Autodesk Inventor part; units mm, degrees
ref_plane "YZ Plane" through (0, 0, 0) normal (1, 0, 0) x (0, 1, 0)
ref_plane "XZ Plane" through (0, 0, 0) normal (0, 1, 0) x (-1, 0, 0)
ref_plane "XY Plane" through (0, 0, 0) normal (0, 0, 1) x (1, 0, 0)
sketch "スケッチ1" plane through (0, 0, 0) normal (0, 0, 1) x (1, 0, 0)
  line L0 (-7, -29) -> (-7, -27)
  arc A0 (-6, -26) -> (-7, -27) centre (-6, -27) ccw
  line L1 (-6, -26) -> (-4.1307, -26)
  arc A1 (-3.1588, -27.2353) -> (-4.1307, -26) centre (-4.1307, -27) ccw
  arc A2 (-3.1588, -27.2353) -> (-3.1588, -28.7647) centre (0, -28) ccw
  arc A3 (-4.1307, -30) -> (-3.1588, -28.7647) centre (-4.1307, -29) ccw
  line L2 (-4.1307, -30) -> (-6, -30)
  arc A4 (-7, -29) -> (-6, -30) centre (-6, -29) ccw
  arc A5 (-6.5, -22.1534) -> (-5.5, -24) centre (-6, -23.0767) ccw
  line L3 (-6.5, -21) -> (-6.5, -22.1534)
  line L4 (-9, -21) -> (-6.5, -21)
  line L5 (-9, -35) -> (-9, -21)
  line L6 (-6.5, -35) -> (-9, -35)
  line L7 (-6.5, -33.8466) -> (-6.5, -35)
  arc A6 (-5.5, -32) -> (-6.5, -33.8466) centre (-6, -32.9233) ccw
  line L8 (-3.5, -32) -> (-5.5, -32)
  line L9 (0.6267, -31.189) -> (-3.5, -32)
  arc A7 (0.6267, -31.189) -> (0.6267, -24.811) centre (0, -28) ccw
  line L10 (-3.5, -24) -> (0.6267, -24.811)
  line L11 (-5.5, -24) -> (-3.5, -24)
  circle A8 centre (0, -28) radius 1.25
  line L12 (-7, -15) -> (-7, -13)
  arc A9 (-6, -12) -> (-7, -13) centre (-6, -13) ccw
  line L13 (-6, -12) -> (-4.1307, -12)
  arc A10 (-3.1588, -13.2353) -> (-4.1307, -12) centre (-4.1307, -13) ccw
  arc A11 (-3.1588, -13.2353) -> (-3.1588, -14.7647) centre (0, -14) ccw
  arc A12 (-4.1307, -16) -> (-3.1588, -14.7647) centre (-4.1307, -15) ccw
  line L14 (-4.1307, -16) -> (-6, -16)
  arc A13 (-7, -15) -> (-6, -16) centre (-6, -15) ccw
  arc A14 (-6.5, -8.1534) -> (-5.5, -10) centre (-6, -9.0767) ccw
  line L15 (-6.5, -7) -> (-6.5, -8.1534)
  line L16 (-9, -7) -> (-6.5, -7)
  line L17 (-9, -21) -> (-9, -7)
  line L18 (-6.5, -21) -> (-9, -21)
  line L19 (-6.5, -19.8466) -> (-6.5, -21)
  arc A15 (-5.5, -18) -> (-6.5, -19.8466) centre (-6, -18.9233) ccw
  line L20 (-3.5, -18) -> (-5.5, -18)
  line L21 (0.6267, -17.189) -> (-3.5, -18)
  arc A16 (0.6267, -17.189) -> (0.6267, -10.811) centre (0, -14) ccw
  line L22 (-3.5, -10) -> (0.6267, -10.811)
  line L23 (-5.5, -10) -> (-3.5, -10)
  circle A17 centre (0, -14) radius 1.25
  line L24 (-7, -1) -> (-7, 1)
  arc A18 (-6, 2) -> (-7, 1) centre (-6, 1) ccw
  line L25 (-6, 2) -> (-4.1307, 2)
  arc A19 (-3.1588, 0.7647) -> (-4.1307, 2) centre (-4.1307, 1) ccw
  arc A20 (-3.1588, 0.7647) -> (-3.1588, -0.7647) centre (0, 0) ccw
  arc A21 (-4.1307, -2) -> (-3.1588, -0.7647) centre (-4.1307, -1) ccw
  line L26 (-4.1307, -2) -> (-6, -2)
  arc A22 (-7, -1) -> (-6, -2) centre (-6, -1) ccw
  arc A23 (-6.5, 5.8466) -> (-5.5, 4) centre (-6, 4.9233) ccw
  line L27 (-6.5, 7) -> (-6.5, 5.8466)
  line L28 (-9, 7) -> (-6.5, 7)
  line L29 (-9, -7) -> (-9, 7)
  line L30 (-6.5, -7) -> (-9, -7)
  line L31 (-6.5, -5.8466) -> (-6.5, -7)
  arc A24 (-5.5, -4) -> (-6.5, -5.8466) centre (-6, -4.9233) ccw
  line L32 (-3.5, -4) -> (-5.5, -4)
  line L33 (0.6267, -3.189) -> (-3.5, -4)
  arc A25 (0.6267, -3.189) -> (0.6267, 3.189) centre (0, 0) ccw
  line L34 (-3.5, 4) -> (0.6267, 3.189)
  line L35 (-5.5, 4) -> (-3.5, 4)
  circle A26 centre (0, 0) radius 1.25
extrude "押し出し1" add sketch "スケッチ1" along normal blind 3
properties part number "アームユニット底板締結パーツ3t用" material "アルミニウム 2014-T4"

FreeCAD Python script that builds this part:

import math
import FreeCAD as App
import Part
import Sketcher
from FreeCAD import Vector
Q = App.Units.Quantity

doc = App.newDocument("Part")
params = doc.addObject("Spreadsheet::Sheet", "Params")
for row, (alias, value) in enumerate([
    ("sketch1_radius", "1 mm"),
    ("sketch1_diameter", "2.5 mm"),
    ("sketch1_width", "2 mm"),
    ("sketch1_height", "42 mm"),
    ("sketch1_radius2", "1.05 mm"),
    ("pad1_length", "3 mm"),
], start=1):
    params.set(f"A{row}", alias)
    params.set(f"B{row}", "=" + value)
    params.setAlias(f"B{row}", alias)

body = doc.addObject("PartDesign::Body", "Body")

sketch1 = body.newObject("Sketcher::SketchObject", "Sketch")
sketch1.AttachmentSupport = (doc.getObject("XY_Plane"), [""])
sketch1.MapMode = "FlatFace"
sketch1.addGeometry([
    Part.ArcOfCircle(Part.Circle(Vector(-6, -23.1, 0), Vector(0, 0, 1), 1), math.radians(118), math.radians(298)),
    Part.LineSegment(Vector(-6.5, -22.2, 0), Vector(-6.5, -19.8, 0)),
    Part.ArcOfCircle(Part.Circle(Vector(-6, -18.9, 0), Vector(0, 0, 1), 1), math.radians(62), math.radians(242)),
    Part.LineSegment(Vector(-5.5, -18, 0), Vector(-3.5, -18, 0)),
    Part.LineSegment(Vector(-3.5, -18, 0), Vector(0.6, -17.2, 0)),
    Part.ArcOfCircle(Part.Circle(Vector(0, -14, 0), Vector(0, 0, 1), 3.2), math.radians(-79), math.radians(79)),
    Part.LineSegment(Vector(0.6, -10.8, 0), Vector(-3.5, -10, 0)),
    Part.LineSegment(Vector(-3.5, -10, 0), Vector(-5.5, -10, 0)),
    Part.ArcOfCircle(Part.Circle(Vector(-6, -9.1, 0), Vector(0, 0, 1), 1), math.radians(118), math.radians(298)),
    Part.LineSegment(Vector(-6.5, -8.2, 0), Vector(-6.5, -5.8, 0)),
    Part.ArcOfCircle(Part.Circle(Vector(-6, -4.9, 0), Vector(0, 0, 1), 1), math.radians(62), math.radians(242)),
    Part.LineSegment(Vector(-5.5, -4, 0), Vector(-3.5, -4, 0)),
    Part.LineSegment(Vector(-3.5, -4, 0), Vector(0.6, -3.2, 0)),
    Part.ArcOfCircle(Part.Circle(Vector(0, 0, 0), Vector(0, 0, 1), 3.2), math.radians(-79), math.radians(79)),
    Part.LineSegment(Vector(0.6, 3.2, 0), Vector(-3.5, 4, 0)),
    Part.LineSegment(Vector(-3.5, 4, 0), Vector(-5.5, 4, 0)),
    Part.ArcOfCircle(Part.Circle(Vector(-6, 4.9, 0), Vector(0, 0, 1), 1), math.radians(118), math.radians(298)),
    Part.LineSegment(Vector(-6.5, 5.8, 0), Vector(-6.5, 7, 0)),
    Part.LineSegment(Vector(-6.5, 7, 0), Vector(-9, 7, 0)),
    Part.LineSegment(Vector(-9, 7, 0), Vector(-9, -35, 0)),
    Part.LineSegment(Vector(-9, -35, 0), Vector(-6.5, -35, 0)),
    Part.LineSegment(Vector(-6.5, -35, 0), Vector(-6.5, -33.8, 0)),
    Part.ArcOfCircle(Part.Circle(Vector(-6, -32.9, 0), Vector(0, 0, 1), 1), math.radians(62), math.radians(242)),
    Part.LineSegment(Vector(-5.5, -32, 0), Vector(-3.5, -32, 0)),
    Part.LineSegment(Vector(-3.5, -32, 0), Vector(0.6, -31.2, 0)),
    Part.ArcOfCircle(Part.Circle(Vector(0, -28, 0), Vector(0, 0, 1), 3.2), math.radians(-79), math.radians(79)),
    Part.LineSegment(Vector(0.6, -24.8, 0), Vector(-3.5, -24, 0)),
    Part.LineSegment(Vector(-3.5, -24, 0), Vector(-5.5, -24, 0)),
    Part.ArcOfCircle(Part.Circle(Vector(-6, -29, 0), Vector(0, 0, 1), 1), math.radians(180), math.radians(270)),
    Part.LineSegment(Vector(-7, -29, 0), Vector(-7, -27, 0)),
    Part.ArcOfCircle(Part.Circle(Vector(-6, -27, 0), Vector(0, 0, 1), 1), math.radians(90), math.radians(180)),
    Part.LineSegment(Vector(-6, -26, 0), Vector(-4.1, -26, 0)),
    Part.ArcOfCircle(Part.Circle(Vector(-4.1, -27, 0), Vector(0, 0, 1), 1), math.radians(-14), math.radians(90)),
    Part.ArcOfCircle(Part.Circle(Vector(0, -28, 0), Vector(0, 0, 1), 3.3), math.radians(166), math.radians(194)),
    Part.ArcOfCircle(Part.Circle(Vector(-4.1, -29, 0), Vector(0, 0, 1), 1), math.radians(-90), math.radians(14)),
    Part.LineSegment(Vector(-4.1, -30, 0), Vector(-6, -30, 0)),
    Part.Circle(Vector(0, -28, 0), Vector(0, 0, 1), 1.2),
    Part.Circle(Vector(0, -14, 0), Vector(0, 0, 1), 1.2),
    Part.ArcOfCircle(Part.Circle(Vector(-6, -15, 0), Vector(0, 0, 1), 1), math.radians(180), math.radians(270)),
    Part.LineSegment(Vector(-7, -15, 0), Vector(-7, -13, 0)),
    Part.ArcOfCircle(Part.Circle(Vector(-6, -13, 0), Vector(0, 0, 1), 1), math.radians(90), math.radians(180)),
    Part.LineSegment(Vector(-6, -12, 0), Vector(-4.1, -12, 0)),
    Part.ArcOfCircle(Part.Circle(Vector(-4.1, -13, 0), Vector(0, 0, 1), 1), math.radians(-14), math.radians(90)),
    Part.ArcOfCircle(Part.Circle(Vector(0, -14, 0), Vector(0, 0, 1), 3.3), math.radians(166), math.radians(194)),
    Part.ArcOfCircle(Part.Circle(Vector(-4.1, -15, 0), Vector(0, 0, 1), 1), math.radians(-90), math.radians(14)),
    Part.LineSegment(Vector(-4.1, -16, 0), Vector(-6, -16, 0)),
    Part.Circle(Vector(0, 0, 0), Vector(0, 0, 1), 1.2),
    Part.ArcOfCircle(Part.Circle(Vector(-6, -1, 0), Vector(0, 0, 1), 1), math.radians(180), math.radians(270)),
    Part.LineSegment(Vector(-7, -1, 0), Vector(-7, 1, 0)),
    Part.ArcOfCircle(Part.Circle(Vector(-6, 1, 0), Vector(0, 0, 1), 1), math.radians(90), math.radians(180)),
    Part.LineSegment(Vector(-6, 2, 0), Vector(-4.1, 2, 0)),
    Part.ArcOfCircle(Part.Circle(Vector(-4.1, 1, 0), Vector(0, 0, 1), 1), math.radians(-14), math.radians(90)),
    Part.ArcOfCircle(Part.Circle(Vector(0, 0, 0), Vector(0, 0, 1), 3.3), math.radians(166), math.radians(194)),
    Part.ArcOfCircle(Part.Circle(Vector(-4.1, -1, 0), Vector(0, 0, 1), 1), math.radians(-90), math.radians(14)),
    Part.LineSegment(Vector(-4.1, -2, 0), Vector(-6, -2, 0)),
], False)
sketch1.addConstraint([
    Sketcher.Constraint("Coincident", 0, 1, 1, 1),
    Sketcher.Constraint("Coincident", 1, 2, 2, 2),
    Sketcher.Constraint("Coincident", 2, 1, 3, 1),
    Sketcher.Constraint("Coincident", 3, 2, 4, 1),
    Sketcher.Constraint("Tangent", 4, 2, 5, 1),
    Sketcher.Constraint("Tangent", 5, 2, 6, 1),
    Sketcher.Constraint("Coincident", 6, 2, 7, 1),
    Sketcher.Constraint("Coincident", 7, 2, 8, 2),
    Sketcher.Constraint("Coincident", 8, 1, 9, 1),
    Sketcher.Constraint("Coincident", 9, 2, 10, 2),
    Sketcher.Constraint("Coincident", 10, 1, 11, 1),
    Sketcher.Constraint("Coincident", 11, 2, 12, 1),
    Sketcher.Constraint("Tangent", 12, 2, 13, 1),
    Sketcher.Constraint("Tangent", 13, 2, 14, 1),
    Sketcher.Constraint("Coincident", 14, 2, 15, 1),
    Sketcher.Constraint("Coincident", 15, 2, 16, 2),
    Sketcher.Constraint("Coincident", 16, 1, 17, 1),
    Sketcher.Constraint("Coincident", 17, 2, 18, 1),
    Sketcher.Constraint("Coincident", 18, 2, 19, 1),
    Sketcher.Constraint("Coincident", 19, 2, 20, 1),
    Sketcher.Constraint("Coincident", 20, 2, 21, 1),
    Sketcher.Constraint("Coincident", 21, 2, 22, 2),
    Sketcher.Constraint("Coincident", 22, 1, 23, 1),
    Sketcher.Constraint("Coincident", 23, 2, 24, 1),
    Sketcher.Constraint("Tangent", 24, 2, 25, 1),
    Sketcher.Constraint("Tangent", 25, 2, 26, 1),
    Sketcher.Constraint("Coincident", 26, 2, 27, 1),
    Sketcher.Constraint("Coincident", 27, 2, 0, 2),
    Sketcher.Constraint("Tangent", 28, 1, 29, 1),
    Sketcher.Constraint("Tangent", 29, 2, 30, 2),
    Sketcher.Constraint("Tangent", 30, 1, 31, 1),
    Sketcher.Constraint("Tangent", 31, 2, 32, 2),
    Sketcher.Constraint("Tangent", 32, 1, 33, 1),
    Sketcher.Constraint("Tangent", 33, 2, 34, 2),
    Sketcher.Constraint("Tangent", 34, 1, 35, 1),
    Sketcher.Constraint("Tangent", 35, 2, 28, 2),
    Sketcher.Constraint("Tangent", 38, 1, 39, 1),
    Sketcher.Constraint("Tangent", 39, 2, 40, 2),
    Sketcher.Constraint("Tangent", 40, 1, 41, 1),
    Sketcher.Constraint("Tangent", 41, 2, 42, 2),
    Sketcher.Constraint("Tangent", 42, 1, 43, 1),
    Sketcher.Constraint("Tangent", 43, 2, 44, 2),
    Sketcher.Constraint("Tangent", 44, 1, 45, 1),
    Sketcher.Constraint("Tangent", 45, 2, 38, 2),
    Sketcher.Constraint("Tangent", 47, 1, 48, 1),
    Sketcher.Constraint("Tangent", 48, 2, 49, 2),
    Sketcher.Constraint("Tangent", 49, 1, 50, 1),
    Sketcher.Constraint("Tangent", 50, 2, 51, 2),
    Sketcher.Constraint("Tangent", 51, 1, 52, 1),
    Sketcher.Constraint("Tangent", 52, 2, 53, 2),
    Sketcher.Constraint("Tangent", 53, 1, 54, 1),
    Sketcher.Constraint("Tangent", 54, 2, 47, 2),
    Sketcher.Constraint("Vertical", 1),
    Sketcher.Constraint("Horizontal", 3),
    Sketcher.Constraint("Horizontal", 7),
    Sketcher.Constraint("Vertical", 9),
    Sketcher.Constraint("Horizontal", 11),
    Sketcher.Constraint("Horizontal", 15),
    Sketcher.Constraint("Vertical", 17),
    Sketcher.Constraint("Horizontal", 18),
    Sketcher.Constraint("Vertical", 19),
    Sketcher.Constraint("Horizontal", 20),
    Sketcher.Constraint("Vertical", 21),
    Sketcher.Constraint("Horizontal", 23),
    Sketcher.Constraint("Horizontal", 27),
    Sketcher.Constraint("Vertical", 29),
    Sketcher.Constraint("Horizontal", 31),
    Sketcher.Constraint("Horizontal", 35),
    Sketcher.Constraint("Vertical", 39),
    Sketcher.Constraint("Horizontal", 41),
    Sketcher.Constraint("Horizontal", 45),
    Sketcher.Constraint("Vertical", 48),
    Sketcher.Constraint("Horizontal", 50),
    Sketcher.Constraint("Horizontal", 54),
    Sketcher.Constraint("Coincident", 13, 3, -1, 1),
    Sketcher.Constraint("Coincident", 46, 3, -1, 1),
    Sketcher.Constraint("Coincident", 52, 3, -1, 1),
    Sketcher.Constraint("Coincident", 33, 3, 25, 3),
    Sketcher.Constraint("Coincident", 36, 3, 25, 3),
    Sketcher.Constraint("Coincident", 37, 3, 5, 3),
    Sketcher.Constraint("Coincident", 43, 3, 5, 3),
    Sketcher.Constraint("Equal", 0, 2),
    Sketcher.Constraint("Equal", 2, 8),
    Sketcher.Constraint("Equal", 8, 10),
    Sketcher.Constraint("Equal", 5, 13),
    Sketcher.Constraint("Equal", 10, 16),
    Sketcher.Constraint("Equal", 16, 22),
    Sketcher.Constraint("Equal", 13, 25),
    Sketcher.Constraint("Equal", 28, 30),
    Sketcher.Constraint("Equal", 30, 32),
    Sketcher.Constraint("Equal", 25, 33),
    Sketcher.Constraint("Equal", 32, 34),
    Sketcher.Constraint("Equal", 36, 37),
    Sketcher.Constraint("Equal", 34, 38),
    Sketcher.Constraint("Equal", 38, 40),
    Sketcher.Constraint("Equal", 40, 42),
    Sketcher.Constraint("Equal", 33, 43),
    Sketcher.Constraint("Equal", 42, 44),
    Sketcher.Constraint("Equal", 37, 46),
    Sketcher.Constraint("Equal", 44, 47),
    Sketcher.Constraint("Equal", 47, 49),
    Sketcher.Constraint("Equal", 49, 51),
    Sketcher.Constraint("Equal", 43, 52),
    Sketcher.Constraint("Equal", 51, 53),
    Sketcher.Constraint("Symmetric", 10, 3, 16, 3, -1),
    Sketcher.Constraint("Symmetric", 11, 2, 14, 2, -1),
    Sketcher.Constraint("PointOnObject", 5, 3, -2),
    Sketcher.Constraint("PointOnObject", 25, 3, -2),
    Sketcher.Constraint("Parallel", 4, 12),
    Sketcher.Constraint("Parallel", 6, 14),
    Sketcher.Constraint("Parallel", 12, 24),
    Sketcher.Constraint("Parallel", 14, 26),
    Sketcher.Constraint("Vertical", 0, 3, 2, 3),
    Sketcher.Constraint("Vertical", 2, 3, 8, 3),
    Sketcher.Constraint("Vertical", 8, 3, 10, 3),
    Sketcher.Constraint("Vertical", 16, 3, 22, 3),
    Sketcher.Constraint("Vertical", 22, 3, 28, 3),
    Sketcher.Constraint("Vertical", 32, 3, 34, 3),
    Sketcher.Constraint("Vertical", 30, 3, 38, 3),
    Sketcher.Constraint("Vertical", 34, 3, 42, 3),
    Sketcher.Constraint("Vertical", 42, 3, 44, 3),
    Sketcher.Constraint("Vertical", 40, 3, 47, 3),
    Sketcher.Constraint("Vertical", 44, 3, 51, 3),
    Sketcher.Constraint("Vertical", 51, 3, 53, 3),
    Sketcher.Constraint("Vertical", 3, 2, 6, 2),
    Sketcher.Constraint("Vertical", 2, 1, 7, 2),
    Sketcher.Constraint("Vertical", 1, 2, 8, 1),
    Sketcher.Constraint("Vertical", 7, 2, 10, 1),
    Sketcher.Constraint("Vertical", 6, 2, 11, 2),
    Sketcher.Constraint("Vertical", 9, 2, 16, 1),
    Sketcher.Constraint("Vertical", 17, 2, 20, 2),
    Sketcher.Constraint("Vertical", 15, 2, 22, 1),
    Sketcher.Constraint("Vertical", 14, 2, 23, 2),
    Sketcher.Constraint("Vertical", 23, 2, 26, 2),
    Sketcher.Constraint("Vertical", 22, 1, 27, 2),
    Sketcher.Constraint("Equal", 1, 9),
    Sketcher.Constraint("Equal", 17, 21),
    Sketcher.Constraint("Equal", 27, 29),
    Sketcher.Constraint("Radius", 28, Q("1 mm")),
    Sketcher.Constraint("Diameter", 36, Q("2.5 mm")),
    Sketcher.Constraint("DistanceX", 3, 1, 3, 2, Q("2 mm")),
    Sketcher.Constraint("DistanceY", 19, 2, 19, 1, Q("42 mm")),
    Sketcher.Constraint("Radius", 0, Q("1.05 mm")),
    Sketcher.Constraint("Radius", 5, Q("3.25 mm")),
    Sketcher.Constraint("DistanceX", 18, 2, 18, 1, Q("2.5 mm")),
    Sketcher.Constraint("DistanceX", 0, 3, -1, 1, Q("6 mm")),
    Sketcher.Constraint("DistanceY", 5, 3, -1, 1, Q("14 mm")),
    Sketcher.Constraint("DistanceY", 2, 1, -1, 1, Q("18 mm")),
    Sketcher.Constraint("DistanceX", 18, 2, -1, 1, Q("9 mm")),
    Sketcher.Constraint("DistanceX", 2, 1, -1, 1, Q("5.5 mm")),
])
sketch1.setExpression("Constraints[138]", "Params.sketch1_radius")
sketch1.setExpression("Constraints[139]", "Params.sketch1_diameter")
sketch1.setExpression("Constraints[140]", "Params.sketch1_width")
sketch1.setExpression("Constraints[141]", "Params.sketch1_height")
sketch1.setExpression("Constraints[142]", "Params.sketch1_radius2")
pad1 = body.newObject("PartDesign::Pad", "Pad")
pad1.Profile = sketch1
pad1.setExpression("Length", "Params.pad1_length")

doc.recompute()
